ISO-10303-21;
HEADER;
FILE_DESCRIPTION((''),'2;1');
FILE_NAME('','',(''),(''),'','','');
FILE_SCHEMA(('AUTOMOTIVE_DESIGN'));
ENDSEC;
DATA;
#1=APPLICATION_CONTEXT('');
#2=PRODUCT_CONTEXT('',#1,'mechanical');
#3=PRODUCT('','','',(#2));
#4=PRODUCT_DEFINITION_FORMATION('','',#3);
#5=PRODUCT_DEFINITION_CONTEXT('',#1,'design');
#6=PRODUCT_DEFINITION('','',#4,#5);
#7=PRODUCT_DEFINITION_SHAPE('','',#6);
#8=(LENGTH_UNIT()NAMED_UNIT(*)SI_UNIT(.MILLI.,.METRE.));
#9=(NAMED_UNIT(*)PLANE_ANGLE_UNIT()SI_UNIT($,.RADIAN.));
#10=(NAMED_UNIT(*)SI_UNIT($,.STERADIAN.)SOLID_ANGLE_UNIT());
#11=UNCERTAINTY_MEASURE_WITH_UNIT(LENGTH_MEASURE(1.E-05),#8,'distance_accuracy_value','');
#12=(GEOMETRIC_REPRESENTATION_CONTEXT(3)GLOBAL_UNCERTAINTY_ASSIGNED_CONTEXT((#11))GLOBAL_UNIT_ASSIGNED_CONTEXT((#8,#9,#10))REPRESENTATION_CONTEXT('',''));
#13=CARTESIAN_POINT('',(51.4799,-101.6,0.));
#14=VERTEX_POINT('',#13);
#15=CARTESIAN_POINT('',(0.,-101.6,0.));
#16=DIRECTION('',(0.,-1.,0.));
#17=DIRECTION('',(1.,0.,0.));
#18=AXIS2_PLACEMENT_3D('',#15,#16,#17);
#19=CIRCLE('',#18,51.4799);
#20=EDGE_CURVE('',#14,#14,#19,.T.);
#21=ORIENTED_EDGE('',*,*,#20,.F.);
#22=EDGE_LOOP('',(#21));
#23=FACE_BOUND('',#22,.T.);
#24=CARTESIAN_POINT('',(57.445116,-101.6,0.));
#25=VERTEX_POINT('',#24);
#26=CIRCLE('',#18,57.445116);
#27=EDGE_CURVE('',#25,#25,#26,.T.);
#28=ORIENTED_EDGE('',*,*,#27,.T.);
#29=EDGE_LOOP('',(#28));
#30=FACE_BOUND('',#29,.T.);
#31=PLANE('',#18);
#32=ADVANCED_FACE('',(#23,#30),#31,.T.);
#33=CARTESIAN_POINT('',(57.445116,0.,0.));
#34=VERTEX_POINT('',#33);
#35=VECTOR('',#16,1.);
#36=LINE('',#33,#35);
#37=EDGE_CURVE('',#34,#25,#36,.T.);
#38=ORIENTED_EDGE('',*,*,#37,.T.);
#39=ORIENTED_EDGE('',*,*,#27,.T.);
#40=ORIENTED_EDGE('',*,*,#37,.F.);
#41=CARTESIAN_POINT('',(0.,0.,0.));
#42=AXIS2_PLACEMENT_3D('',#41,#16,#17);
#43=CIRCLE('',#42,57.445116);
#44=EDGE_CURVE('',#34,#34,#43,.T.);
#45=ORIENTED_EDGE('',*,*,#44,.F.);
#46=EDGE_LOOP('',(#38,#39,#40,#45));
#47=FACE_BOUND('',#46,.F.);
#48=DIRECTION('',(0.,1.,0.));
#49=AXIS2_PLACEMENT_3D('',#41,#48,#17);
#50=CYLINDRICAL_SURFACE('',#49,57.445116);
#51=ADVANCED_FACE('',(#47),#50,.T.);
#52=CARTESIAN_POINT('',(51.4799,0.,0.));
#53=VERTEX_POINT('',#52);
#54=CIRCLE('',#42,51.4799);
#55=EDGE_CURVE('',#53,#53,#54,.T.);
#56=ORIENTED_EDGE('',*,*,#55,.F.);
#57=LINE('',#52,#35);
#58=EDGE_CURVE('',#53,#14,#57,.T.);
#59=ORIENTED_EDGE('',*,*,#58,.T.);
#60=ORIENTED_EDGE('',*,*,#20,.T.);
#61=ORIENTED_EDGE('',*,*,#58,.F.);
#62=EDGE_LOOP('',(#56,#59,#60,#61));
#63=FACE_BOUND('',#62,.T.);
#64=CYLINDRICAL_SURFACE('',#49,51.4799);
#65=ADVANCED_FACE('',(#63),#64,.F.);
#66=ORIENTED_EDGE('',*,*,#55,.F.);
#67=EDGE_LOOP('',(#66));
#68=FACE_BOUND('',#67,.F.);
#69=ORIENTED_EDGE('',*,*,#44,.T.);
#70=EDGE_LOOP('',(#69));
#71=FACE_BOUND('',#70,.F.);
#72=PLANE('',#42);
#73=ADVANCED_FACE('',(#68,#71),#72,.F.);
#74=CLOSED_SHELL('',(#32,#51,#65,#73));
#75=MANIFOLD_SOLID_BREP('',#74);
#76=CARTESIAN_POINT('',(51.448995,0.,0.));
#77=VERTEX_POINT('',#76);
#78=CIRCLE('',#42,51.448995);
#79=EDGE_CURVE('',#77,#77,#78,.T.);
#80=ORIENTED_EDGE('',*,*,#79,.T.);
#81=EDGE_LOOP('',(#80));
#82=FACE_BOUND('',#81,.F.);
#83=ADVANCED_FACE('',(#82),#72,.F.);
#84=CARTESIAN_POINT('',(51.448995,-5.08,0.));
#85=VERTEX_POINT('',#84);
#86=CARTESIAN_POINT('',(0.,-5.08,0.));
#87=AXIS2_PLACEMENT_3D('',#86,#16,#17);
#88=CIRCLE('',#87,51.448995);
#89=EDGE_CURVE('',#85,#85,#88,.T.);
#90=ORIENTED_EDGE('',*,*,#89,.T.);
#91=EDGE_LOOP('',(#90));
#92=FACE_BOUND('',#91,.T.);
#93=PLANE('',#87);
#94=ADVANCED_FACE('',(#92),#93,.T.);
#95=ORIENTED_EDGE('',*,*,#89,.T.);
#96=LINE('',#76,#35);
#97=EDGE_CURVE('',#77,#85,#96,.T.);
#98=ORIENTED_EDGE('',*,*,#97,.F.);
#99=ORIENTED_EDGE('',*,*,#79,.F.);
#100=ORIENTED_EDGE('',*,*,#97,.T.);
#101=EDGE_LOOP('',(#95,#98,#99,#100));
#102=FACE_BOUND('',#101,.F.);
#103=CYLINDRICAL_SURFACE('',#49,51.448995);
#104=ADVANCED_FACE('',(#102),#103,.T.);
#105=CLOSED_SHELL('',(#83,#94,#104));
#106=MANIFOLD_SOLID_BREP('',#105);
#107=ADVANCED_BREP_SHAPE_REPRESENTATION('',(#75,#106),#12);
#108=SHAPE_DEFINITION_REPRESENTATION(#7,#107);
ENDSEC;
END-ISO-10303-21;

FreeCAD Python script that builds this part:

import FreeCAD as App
import Part
import Sketcher

V = App.Vector
Q = App.Units.Quantity

doc = App.newDocument("Part")
body = doc.addObject("PartDesign::Body", "Body")

# Sketch on XZ plane
sketch1 = doc.addObject("Sketcher::SketchObject", "Sketch")
body.addObject(sketch1)
sketch1.AttachmentSupport = (doc.XZ_Plane, [""])
sketch1.MapMode = "FlatFace"
sketch1.addGeometry(Part.Circle(V(0, 0, 0), V(0, 0, 1), 57), False)
sketch1.addGeometry(Part.Circle(V(0, 0, 0), V(0, 0, 1), 51), False)
sketch1.addConstraint(Sketcher.Constraint("Coincident", 0, 3, -1, 1))
sketch1.addConstraint(Sketcher.Constraint("Coincident", 1, 3, -1, 1))
sketch1.addConstraint(Sketcher.Constraint("Diameter", 1, 102.9598))
sketch1.addConstraint(Sketcher.Constraint("Diameter", 0, 114.890232))
pad1 = doc.addObject("PartDesign::Pad", "Pad")
body.addObject(pad1)
pad1.Profile = sketch1
pad1.Length = Q("4 in")
body2 = doc.addObject("PartDesign::Body", "Body001")

# Sketch on XZ plane
sketch2 = doc.addObject("Sketcher::SketchObject", "Sketch001")
body2.addObject(sketch2)
sketch2.AttachmentSupport = (doc.getObject("XZ_Plane001"), [""])
sketch2.MapMode = "FlatFace"
sketch2.addGeometry(Part.Circle(V(0, 0, 0), V(0, 0, 1), 51), False)
sketch2.addConstraint(Sketcher.Constraint("Coincident", 0, 3, -1, 1))
sketch2.addConstraint(Sketcher.Constraint("Diameter", 0, 102.89799))
pad2 = doc.addObject("PartDesign::Pad", "Pad001")
body2.addObject(pad2)
pad2.Profile = sketch2
pad2.Length = Q("0.2 in")

doc.recompute()
